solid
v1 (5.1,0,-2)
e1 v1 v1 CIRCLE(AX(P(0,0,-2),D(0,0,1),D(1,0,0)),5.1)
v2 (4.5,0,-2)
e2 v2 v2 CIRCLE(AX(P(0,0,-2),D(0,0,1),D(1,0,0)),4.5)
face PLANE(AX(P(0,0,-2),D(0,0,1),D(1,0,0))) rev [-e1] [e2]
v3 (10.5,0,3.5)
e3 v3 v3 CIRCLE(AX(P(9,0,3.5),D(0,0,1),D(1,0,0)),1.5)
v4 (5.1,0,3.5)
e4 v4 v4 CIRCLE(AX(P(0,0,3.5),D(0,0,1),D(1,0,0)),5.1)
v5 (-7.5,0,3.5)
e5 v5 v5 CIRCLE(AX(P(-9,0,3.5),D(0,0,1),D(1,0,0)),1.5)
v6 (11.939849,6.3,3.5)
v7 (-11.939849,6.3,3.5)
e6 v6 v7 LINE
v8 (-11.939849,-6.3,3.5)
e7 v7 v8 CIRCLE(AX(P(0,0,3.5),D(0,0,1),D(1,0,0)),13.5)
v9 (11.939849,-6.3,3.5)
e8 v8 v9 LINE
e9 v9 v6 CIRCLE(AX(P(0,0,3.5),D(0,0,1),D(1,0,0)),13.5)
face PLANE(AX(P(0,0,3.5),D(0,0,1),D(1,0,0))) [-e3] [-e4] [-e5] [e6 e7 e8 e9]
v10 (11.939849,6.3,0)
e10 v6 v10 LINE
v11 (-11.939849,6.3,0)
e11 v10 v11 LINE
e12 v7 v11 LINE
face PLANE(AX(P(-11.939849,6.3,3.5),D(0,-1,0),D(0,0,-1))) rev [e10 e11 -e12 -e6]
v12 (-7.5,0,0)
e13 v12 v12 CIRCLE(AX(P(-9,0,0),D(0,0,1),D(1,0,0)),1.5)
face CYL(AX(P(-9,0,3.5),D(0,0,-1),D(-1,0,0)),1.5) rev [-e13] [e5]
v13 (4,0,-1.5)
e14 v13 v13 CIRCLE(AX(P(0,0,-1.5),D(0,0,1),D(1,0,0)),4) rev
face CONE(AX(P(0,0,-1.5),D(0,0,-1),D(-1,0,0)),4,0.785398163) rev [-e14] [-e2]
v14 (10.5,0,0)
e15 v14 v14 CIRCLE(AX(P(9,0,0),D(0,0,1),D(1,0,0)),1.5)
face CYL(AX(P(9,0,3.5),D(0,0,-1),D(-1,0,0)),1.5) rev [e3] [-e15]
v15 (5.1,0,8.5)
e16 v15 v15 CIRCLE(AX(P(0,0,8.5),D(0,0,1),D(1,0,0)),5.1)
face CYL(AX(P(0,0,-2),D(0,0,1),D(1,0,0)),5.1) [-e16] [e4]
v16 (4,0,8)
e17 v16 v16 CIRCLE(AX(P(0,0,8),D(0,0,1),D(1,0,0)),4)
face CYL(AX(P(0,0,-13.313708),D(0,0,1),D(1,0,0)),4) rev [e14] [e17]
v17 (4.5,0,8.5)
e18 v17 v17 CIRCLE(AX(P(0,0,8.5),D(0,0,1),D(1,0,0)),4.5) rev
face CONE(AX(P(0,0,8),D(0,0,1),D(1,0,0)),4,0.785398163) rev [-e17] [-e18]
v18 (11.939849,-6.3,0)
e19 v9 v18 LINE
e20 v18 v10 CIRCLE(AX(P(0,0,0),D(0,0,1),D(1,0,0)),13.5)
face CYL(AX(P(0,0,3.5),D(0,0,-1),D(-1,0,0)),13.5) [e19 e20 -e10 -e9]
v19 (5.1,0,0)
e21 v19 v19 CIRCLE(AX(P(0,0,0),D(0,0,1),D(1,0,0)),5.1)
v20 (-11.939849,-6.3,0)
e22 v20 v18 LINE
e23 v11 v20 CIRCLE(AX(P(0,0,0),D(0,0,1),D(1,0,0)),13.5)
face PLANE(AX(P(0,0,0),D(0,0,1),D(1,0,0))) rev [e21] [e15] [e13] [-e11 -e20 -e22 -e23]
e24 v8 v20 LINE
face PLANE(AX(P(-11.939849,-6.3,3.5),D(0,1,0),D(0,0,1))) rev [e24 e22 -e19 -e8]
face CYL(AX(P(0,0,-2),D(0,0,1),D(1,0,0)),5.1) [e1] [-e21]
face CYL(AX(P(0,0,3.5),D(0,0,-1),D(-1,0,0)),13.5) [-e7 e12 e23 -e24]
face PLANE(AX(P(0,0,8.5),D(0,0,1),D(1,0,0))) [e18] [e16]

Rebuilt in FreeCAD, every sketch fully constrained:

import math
import FreeCAD as App
import Part
import Sketcher

V = App.Vector
Q = App.Units.Quantity


def edges_at(feature, points):
    """Names of the edges that pass closest to the given points."""
    edges = feature.Shape.Edges
    near = lambda p: min(range(len(edges)), key=lambda i: edges[i].distToShape(Part.Vertex(*p))[0])
    return sorted({f"Edge{near(p) + 1}" for p in points})

doc = App.newDocument("Part")
params = doc.addObject("Spreadsheet::Sheet", "Params")
for row, (alias, value) in enumerate([
    ("sketch1_diameter", "3 mm"),
    ("sketch1_radius", "13.5 mm"),
    ("pad1_length", "3.5 mm"),
    ("sketch2_diameter", "10.2 mm"),
    ("pad2_length", "5 mm"),
    ("pad2_length2", "5.5 mm"),
    ("sketch3_diameter", "8 mm"),
    ("pocket1_length", "10.5 mm"),
    ("chamfer_size", "0.5 mm"),
], start=1):
    params.set(f"A{row}", alias)
    params.set(f"B{row}", "=" + value)
    params.setAlias(f"B{row}", alias)

body = doc.addObject("PartDesign::Body", "Body")

# Sketch on XY plane
sketch1 = body.newObject("Sketcher::SketchObject", "Sketch")
sketch1.AttachmentSupport = (doc.getObject("XY_Plane"), [""])
sketch1.MapMode = "FlatFace"
sketch1.addGeometry([
    Part.LineSegment(V(11.9, 6.3, 0), V(-11.9, 6.3, 0)),  # 0
    Part.ArcOfCircle(Part.Circle(V(0, 0, 0), V(0, 0, 1), 13.5), math.radians(152), math.radians(208)),  # 1
    Part.LineSegment(V(-11.9, -6.3, 0), V(11.9, -6.3, 0)),  # 2
    Part.ArcOfCircle(Part.Circle(V(0, 0, 0), V(0, 0, 1), 13.5), math.radians(-28), math.radians(28)),  # 3
    Part.Circle(V(9, 0, 0), V(0, 0, 1), 1.5),  # 4
    Part.Circle(V(-9, 0, 0), V(0, 0, 1), 1.5),  # 5
], False)
sketch1.addConstraint([
    Sketcher.Constraint("Coincident", 0, 2, 1, 1),
    Sketcher.Constraint("Coincident", 1, 2, 2, 1),
    Sketcher.Constraint("Coincident", 2, 2, 3, 1),
    Sketcher.Constraint("Coincident", 3, 2, 0, 1),
    Sketcher.Constraint("Horizontal", 0),
    Sketcher.Constraint("Horizontal", 2),
    Sketcher.Constraint("Coincident", 1, 3, -1, 1),
    Sketcher.Constraint("Coincident", 3, 3, -1, 1),
    Sketcher.Constraint("Equal", 1, 3),
    Sketcher.Constraint("Equal", 4, 5),
    Sketcher.Constraint("Symmetric", 4, 3, 5, 3, -1, 1),
    Sketcher.Constraint("PointOnObject", 4, 3, -1),
    Sketcher.Constraint("Vertical", 0, 2, 1, 2),
    Sketcher.Constraint("Diameter", 4, Q("3 mm")),
    Sketcher.Constraint("Radius", 1, Q("13.5 mm")),
    Sketcher.Constraint("DistanceX", -1, 1, 4, 3, Q("9 mm")),
    Sketcher.Constraint("DistanceY", -1, 1, 0, 2, Q("6.3 mm")),
])
sketch1.setExpression("Constraints[13]", "Params.sketch1_diameter")
sketch1.setExpression("Constraints[14]", "Params.sketch1_radius")
pad1 = body.newObject("PartDesign::Pad", "Pad")
pad1.Profile = sketch1
pad1.setExpression("Length", "Params.pad1_length")

# Sketch on XY plane
sketch2 = body.newObject("Sketcher::SketchObject", "Sketch001")
sketch2.AttachmentSupport = (doc.getObject("XY_Plane"), [""])
sketch2.MapMode = "FlatFace"
sketch2.AttachmentOffset = App.Placement(V(0, 0, 3.5), App.Rotation())
sketch2.addGeometry(Part.Circle(V(0, 0, 0), V(0, 0, 1), 5), False)
sketch2.addConstraint([
    Sketcher.Constraint("Coincident", 0, 3, -1, 1),
    Sketcher.Constraint("Diameter", 0, Q("10.2 mm")),
])
sketch2.setExpression("Constraints[1]", "Params.sketch2_diameter")
pad2 = body.newObject("PartDesign::Pad", "Pad001")
pad2.Profile = sketch2
pad2.Type = "TwoLengths"
pad2.setExpression("Length", "Params.pad2_length")
pad2.setExpression("Length2", "Params.pad2_length2")

# Sketch on XY plane
sketch3 = body.newObject("Sketcher::SketchObject", "Sketch002")
sketch3.AttachmentSupport = (doc.getObject("XY_Plane"), [""])
sketch3.MapMode = "FlatFace"
sketch3.AttachmentOffset = App.Placement(V(0, 0, 8.5), App.Rotation())
sketch3.addGeometry(Part.Circle(V(0, 0, 0), V(0, 0, 1), 4), False)
sketch3.addConstraint([
    Sketcher.Constraint("Coincident", 0, 3, -1, 1),
    Sketcher.Constraint("Diameter", 0, Q("8 mm")),
])
sketch3.setExpression("Constraints[1]", "Params.sketch3_diameter")
pocket1 = body.newObject("PartDesign::Pocket", "Pocket")
pocket1.Profile = sketch3
pocket1.setExpression("Length", "Params.pocket1_length")
doc.recompute()

chamfer = body.newObject("PartDesign::Chamfer", "Chamfer")
chamfer.Base = (pocket1, edges_at(pocket1, [(-4, 0, 8.5), (-4, 0, -2)]))
chamfer.setExpression("Size", "Params.chamfer_size")

doc.recompute()
